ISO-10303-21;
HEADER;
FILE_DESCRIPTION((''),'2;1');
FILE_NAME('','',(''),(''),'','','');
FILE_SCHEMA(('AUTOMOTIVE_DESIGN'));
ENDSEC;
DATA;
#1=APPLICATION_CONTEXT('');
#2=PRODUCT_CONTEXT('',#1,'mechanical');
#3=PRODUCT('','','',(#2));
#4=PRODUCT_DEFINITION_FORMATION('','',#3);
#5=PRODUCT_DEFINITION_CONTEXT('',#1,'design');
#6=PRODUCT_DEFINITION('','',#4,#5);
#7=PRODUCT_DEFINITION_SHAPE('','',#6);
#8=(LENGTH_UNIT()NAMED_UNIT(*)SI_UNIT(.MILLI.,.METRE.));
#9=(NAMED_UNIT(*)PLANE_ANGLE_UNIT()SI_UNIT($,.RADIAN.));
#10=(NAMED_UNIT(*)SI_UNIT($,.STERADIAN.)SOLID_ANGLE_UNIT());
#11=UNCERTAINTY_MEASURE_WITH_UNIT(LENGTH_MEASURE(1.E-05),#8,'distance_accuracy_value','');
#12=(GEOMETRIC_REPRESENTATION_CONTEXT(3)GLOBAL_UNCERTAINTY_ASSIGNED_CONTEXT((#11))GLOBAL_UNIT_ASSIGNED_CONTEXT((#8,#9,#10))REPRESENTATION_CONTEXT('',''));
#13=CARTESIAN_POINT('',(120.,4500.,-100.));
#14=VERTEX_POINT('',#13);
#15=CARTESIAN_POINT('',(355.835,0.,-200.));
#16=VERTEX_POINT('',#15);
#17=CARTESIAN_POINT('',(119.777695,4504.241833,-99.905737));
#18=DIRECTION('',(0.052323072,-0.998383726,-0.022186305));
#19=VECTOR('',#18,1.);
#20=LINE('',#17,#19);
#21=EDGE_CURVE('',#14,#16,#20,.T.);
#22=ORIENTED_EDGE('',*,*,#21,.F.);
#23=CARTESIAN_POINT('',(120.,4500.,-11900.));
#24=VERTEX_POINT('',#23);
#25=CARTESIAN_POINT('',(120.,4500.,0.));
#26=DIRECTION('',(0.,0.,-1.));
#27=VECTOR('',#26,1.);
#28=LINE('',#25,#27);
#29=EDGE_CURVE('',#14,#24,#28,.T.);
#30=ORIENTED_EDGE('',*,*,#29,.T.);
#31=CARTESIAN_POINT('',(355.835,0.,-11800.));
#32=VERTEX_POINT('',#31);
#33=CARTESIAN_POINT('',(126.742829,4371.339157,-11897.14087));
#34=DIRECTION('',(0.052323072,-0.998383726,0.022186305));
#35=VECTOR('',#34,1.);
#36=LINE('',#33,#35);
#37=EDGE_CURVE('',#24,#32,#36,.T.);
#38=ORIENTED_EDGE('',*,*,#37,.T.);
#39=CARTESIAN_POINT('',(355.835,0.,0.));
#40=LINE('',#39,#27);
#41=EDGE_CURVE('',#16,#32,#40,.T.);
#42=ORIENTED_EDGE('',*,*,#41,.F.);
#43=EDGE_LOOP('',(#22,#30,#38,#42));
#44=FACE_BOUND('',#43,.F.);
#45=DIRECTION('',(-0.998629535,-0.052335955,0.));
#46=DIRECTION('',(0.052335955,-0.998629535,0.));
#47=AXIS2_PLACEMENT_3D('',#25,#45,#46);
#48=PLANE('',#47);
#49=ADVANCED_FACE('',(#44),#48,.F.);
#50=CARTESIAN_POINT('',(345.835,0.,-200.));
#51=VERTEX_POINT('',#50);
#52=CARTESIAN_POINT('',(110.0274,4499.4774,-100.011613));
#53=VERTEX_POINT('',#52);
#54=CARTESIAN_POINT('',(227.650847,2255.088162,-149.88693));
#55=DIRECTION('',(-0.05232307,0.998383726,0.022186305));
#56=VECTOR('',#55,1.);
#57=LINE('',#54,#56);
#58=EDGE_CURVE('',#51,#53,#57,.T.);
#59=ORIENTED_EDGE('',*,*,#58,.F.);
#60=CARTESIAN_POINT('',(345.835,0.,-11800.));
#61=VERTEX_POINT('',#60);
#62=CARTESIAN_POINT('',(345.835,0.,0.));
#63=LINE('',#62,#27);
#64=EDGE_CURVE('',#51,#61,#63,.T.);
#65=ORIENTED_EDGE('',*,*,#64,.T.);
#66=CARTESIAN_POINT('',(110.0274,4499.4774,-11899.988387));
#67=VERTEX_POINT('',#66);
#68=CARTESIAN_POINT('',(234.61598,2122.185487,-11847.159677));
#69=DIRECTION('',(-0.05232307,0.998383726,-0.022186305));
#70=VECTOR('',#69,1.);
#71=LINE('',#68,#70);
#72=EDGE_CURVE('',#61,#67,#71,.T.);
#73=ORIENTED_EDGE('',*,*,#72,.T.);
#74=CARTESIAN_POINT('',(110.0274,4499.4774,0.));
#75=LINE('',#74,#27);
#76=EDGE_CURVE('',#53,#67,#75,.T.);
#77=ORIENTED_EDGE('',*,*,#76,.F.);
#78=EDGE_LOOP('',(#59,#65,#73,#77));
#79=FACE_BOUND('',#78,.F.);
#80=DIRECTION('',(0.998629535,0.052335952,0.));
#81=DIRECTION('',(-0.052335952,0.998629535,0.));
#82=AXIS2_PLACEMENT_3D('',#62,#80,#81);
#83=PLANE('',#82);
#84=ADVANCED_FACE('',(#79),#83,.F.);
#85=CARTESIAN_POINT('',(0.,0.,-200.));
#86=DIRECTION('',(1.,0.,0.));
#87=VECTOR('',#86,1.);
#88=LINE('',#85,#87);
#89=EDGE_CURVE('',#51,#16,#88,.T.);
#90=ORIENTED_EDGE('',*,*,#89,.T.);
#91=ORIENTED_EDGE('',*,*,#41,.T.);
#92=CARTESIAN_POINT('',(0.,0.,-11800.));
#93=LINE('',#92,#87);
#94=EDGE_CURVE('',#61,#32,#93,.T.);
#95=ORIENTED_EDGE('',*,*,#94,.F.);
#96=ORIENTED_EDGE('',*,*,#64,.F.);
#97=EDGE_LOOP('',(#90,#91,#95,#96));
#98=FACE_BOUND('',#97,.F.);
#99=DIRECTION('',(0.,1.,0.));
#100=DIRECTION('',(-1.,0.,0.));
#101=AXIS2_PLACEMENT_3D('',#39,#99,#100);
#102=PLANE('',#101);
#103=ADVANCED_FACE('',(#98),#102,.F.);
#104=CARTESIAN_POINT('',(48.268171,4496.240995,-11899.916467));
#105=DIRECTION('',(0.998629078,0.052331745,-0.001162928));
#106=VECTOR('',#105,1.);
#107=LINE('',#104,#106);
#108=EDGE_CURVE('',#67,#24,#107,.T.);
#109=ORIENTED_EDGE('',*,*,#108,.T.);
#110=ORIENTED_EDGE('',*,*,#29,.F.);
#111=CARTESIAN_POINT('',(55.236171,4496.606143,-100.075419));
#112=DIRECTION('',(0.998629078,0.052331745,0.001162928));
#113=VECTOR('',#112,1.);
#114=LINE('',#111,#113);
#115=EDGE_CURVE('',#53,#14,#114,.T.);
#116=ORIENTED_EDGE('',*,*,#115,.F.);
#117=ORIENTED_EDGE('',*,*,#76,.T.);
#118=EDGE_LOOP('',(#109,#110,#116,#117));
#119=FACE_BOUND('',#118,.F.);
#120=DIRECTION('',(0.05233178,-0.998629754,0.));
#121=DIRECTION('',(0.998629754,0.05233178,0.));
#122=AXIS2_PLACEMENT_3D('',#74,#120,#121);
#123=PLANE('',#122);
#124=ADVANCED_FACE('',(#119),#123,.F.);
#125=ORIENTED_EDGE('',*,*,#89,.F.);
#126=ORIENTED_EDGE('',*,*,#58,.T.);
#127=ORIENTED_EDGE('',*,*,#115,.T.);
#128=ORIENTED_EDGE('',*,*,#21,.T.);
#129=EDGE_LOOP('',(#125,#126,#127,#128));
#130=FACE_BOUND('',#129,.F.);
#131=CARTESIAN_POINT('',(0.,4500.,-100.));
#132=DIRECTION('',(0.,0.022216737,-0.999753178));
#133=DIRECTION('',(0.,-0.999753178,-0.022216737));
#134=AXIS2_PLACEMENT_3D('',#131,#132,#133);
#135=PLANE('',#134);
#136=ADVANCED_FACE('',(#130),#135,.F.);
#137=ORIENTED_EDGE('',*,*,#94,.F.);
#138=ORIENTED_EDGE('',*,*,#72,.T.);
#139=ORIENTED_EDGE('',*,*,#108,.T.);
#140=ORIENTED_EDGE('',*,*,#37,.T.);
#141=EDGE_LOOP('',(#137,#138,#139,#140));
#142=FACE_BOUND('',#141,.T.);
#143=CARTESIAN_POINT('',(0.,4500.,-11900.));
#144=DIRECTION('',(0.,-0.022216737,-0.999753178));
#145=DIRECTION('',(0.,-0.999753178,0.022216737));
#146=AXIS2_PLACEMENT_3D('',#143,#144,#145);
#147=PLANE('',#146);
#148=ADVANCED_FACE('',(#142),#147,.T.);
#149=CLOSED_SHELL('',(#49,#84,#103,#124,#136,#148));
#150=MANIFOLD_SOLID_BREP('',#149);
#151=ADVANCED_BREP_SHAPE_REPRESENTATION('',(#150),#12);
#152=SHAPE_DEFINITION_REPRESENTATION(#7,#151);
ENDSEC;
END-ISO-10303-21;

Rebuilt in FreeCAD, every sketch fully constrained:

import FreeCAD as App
import Part
import Sketcher
Q = App.Units.Quantity

doc = App.newDocument("Part")
body = doc.addObject("PartDesign::Body", "Body")

# Sketch on XY plane
sketch1 = doc.addObject("Sketcher::SketchObject", "Sketch")
body.addObject(sketch1)
sketch1.AttachmentSupport = (doc.XY_Plane, [""])
sketch1.MapMode = "FlatFace"
sketch1.addGeometry(Part.LineSegment(App.Vector(346, 0, 0), App.Vector(356, 0, 0)), False)
sketch1.addGeometry(Part.LineSegment(App.Vector(356, 0, 0), App.Vector(120, 4500, 0)), False)
sketch1.addGeometry(Part.LineSegment(App.Vector(120, 4500, 0), App.Vector(110, 4499, 0)), False)
sketch1.addGeometry(Part.LineSegment(App.Vector(110, 4499, 0), App.Vector(346, 0, 0)), False)
sketch1.addConstraint(Sketcher.Constraint("Coincident", 0, 2, 1, 1))
sketch1.addConstraint(Sketcher.Constraint("Coincident", 1, 2, 2, 1))
sketch1.addConstraint(Sketcher.Constraint("Coincident", 2, 2, 3, 1))
sketch1.addConstraint(Sketcher.Constraint("Coincident", 3, 2, 0, 1))
sketch1.addConstraint(Sketcher.Constraint("Horizontal", 0))
sketch1.addConstraint(Sketcher.Constraint("PointOnObject", 0, 2, -1))
sketch1.addConstraint(Sketcher.Constraint("Perpendicular", 1, 2))
sketch1.addConstraint(Sketcher.Constraint("Perpendicular", 2, 3))
sketch1.addConstraint(Sketcher.Constraint("DistanceX", 0, 1, 0, 2, Q("10 mm")))
sketch1.addConstraint(Sketcher.Constraint("Angle", 3, Q("-87 deg")))
sketch1.addConstraint(Sketcher.Constraint("DistanceX", -1, 1, 1, 2, Q("120 mm")))
sketch1.addConstraint(Sketcher.Constraint("DistanceY", -1, 1, 1, 2, Q("4500 mm")))
pad1 = doc.addObject("PartDesign::Pad", "Pad")
body.addObject(pad1)
pad1.Profile = sketch1
pad1.Length = 12000
pad1.Reversed = True

# Sketch on YZ plane
sketch2 = doc.addObject("Sketcher::SketchObject", "Sketch001")
body.addObject(sketch2)
sketch2.AttachmentSupport = (doc.YZ_Plane, [""])
sketch2.MapMode = "FlatFace"
sketch2.addGeometry(Part.LineSegment(App.Vector(4500, 0, 0), App.Vector(0, 0, 0)), False)
sketch2.addGeometry(Part.LineSegment(App.Vector(0, 0, 0), App.Vector(0, -200, 0)), False)
sketch2.addGeometry(Part.LineSegment(App.Vector(0, -200, 0), App.Vector(4500, -100, 0)), False)
sketch2.addGeometry(Part.LineSegment(App.Vector(4500, -100, 0), App.Vector(4500, 0, 0)), False)
sketch2.addGeometry(Part.LineSegment(App.Vector(4500, -11900, 0), App.Vector(0, -11800, 0)), False)
sketch2.addGeometry(Part.LineSegment(App.Vector(0, -11800, 0), App.Vector(0, -12000, 0)), False)
sketch2.addGeometry(Part.LineSegment(App.Vector(0, -12000, 0), App.Vector(4500, -12000, 0)), False)
sketch2.addGeometry(Part.LineSegment(App.Vector(4500, -12000, 0), App.Vector(4500, -11900, 0)), False)
sketch2.addConstraint(Sketcher.Constraint("Coincident", 0, 2, 1, 1))
sketch2.addConstraint(Sketcher.Constraint("Coincident", 1, 2, 2, 1))
sketch2.addConstraint(Sketcher.Constraint("Coincident", 2, 2, 3, 1))
sketch2.addConstraint(Sketcher.Constraint("Coincident", 3, 2, 0, 1))
sketch2.addConstraint(Sketcher.Constraint("Coincident", 4, 2, 5, 1))
sketch2.addConstraint(Sketcher.Constraint("Coincident", 5, 2, 6, 1))
sketch2.addConstraint(Sketcher.Constraint("Coincident", 6, 2, 7, 1))
sketch2.addConstraint(Sketcher.Constraint("Coincident", 7, 2, 4, 1))
sketch2.addConstraint(Sketcher.Constraint("Horizontal", 0))
sketch2.addConstraint(Sketcher.Constraint("Vertical", 1))
sketch2.addConstraint(Sketcher.Constraint("Vertical", 3))
sketch2.addConstraint(Sketcher.Constraint("Vertical", 5))
sketch2.addConstraint(Sketcher.Constraint("Horizontal", 6))
sketch2.addConstraint(Sketcher.Constraint("Vertical", 7))
sketch2.addConstraint(Sketcher.Constraint("Coincident", 0, 2, -1, 1))
sketch2.addConstraint(Sketcher.Constraint("PointOnObject", 4, 2, -2))
sketch2.addConstraint(Sketcher.Constraint("Vertical", 3, 2, 6, 2))
sketch2.addConstraint(Sketcher.Constraint("Equal", 1, 5))
sketch2.addConstraint(Sketcher.Constraint("Equal", 3, 7))
sketch2.addConstraint(Sketcher.Constraint("DistanceY", 1, 2, 1, 1, Q("200 mm")))
sketch2.addConstraint(Sketcher.Constraint("DistanceY", 3, 1, 3, 2, Q("100 mm")))
sketch2.addConstraint(Sketcher.Constraint("DistanceX", 0, 2, 0, 1, Q("4500 mm")))
sketch2.addConstraint(Sketcher.Constraint("DistanceY", 4, 2, -1, 1, Q("11800 mm")))
pocket1 = doc.addObject("PartDesign::Pocket", "Pocket")
body.addObject(pocket1)
pocket1.Profile = sketch2
pocket1.Type = "ThroughAll"
pocket1.Reversed = True

doc.recompute()
